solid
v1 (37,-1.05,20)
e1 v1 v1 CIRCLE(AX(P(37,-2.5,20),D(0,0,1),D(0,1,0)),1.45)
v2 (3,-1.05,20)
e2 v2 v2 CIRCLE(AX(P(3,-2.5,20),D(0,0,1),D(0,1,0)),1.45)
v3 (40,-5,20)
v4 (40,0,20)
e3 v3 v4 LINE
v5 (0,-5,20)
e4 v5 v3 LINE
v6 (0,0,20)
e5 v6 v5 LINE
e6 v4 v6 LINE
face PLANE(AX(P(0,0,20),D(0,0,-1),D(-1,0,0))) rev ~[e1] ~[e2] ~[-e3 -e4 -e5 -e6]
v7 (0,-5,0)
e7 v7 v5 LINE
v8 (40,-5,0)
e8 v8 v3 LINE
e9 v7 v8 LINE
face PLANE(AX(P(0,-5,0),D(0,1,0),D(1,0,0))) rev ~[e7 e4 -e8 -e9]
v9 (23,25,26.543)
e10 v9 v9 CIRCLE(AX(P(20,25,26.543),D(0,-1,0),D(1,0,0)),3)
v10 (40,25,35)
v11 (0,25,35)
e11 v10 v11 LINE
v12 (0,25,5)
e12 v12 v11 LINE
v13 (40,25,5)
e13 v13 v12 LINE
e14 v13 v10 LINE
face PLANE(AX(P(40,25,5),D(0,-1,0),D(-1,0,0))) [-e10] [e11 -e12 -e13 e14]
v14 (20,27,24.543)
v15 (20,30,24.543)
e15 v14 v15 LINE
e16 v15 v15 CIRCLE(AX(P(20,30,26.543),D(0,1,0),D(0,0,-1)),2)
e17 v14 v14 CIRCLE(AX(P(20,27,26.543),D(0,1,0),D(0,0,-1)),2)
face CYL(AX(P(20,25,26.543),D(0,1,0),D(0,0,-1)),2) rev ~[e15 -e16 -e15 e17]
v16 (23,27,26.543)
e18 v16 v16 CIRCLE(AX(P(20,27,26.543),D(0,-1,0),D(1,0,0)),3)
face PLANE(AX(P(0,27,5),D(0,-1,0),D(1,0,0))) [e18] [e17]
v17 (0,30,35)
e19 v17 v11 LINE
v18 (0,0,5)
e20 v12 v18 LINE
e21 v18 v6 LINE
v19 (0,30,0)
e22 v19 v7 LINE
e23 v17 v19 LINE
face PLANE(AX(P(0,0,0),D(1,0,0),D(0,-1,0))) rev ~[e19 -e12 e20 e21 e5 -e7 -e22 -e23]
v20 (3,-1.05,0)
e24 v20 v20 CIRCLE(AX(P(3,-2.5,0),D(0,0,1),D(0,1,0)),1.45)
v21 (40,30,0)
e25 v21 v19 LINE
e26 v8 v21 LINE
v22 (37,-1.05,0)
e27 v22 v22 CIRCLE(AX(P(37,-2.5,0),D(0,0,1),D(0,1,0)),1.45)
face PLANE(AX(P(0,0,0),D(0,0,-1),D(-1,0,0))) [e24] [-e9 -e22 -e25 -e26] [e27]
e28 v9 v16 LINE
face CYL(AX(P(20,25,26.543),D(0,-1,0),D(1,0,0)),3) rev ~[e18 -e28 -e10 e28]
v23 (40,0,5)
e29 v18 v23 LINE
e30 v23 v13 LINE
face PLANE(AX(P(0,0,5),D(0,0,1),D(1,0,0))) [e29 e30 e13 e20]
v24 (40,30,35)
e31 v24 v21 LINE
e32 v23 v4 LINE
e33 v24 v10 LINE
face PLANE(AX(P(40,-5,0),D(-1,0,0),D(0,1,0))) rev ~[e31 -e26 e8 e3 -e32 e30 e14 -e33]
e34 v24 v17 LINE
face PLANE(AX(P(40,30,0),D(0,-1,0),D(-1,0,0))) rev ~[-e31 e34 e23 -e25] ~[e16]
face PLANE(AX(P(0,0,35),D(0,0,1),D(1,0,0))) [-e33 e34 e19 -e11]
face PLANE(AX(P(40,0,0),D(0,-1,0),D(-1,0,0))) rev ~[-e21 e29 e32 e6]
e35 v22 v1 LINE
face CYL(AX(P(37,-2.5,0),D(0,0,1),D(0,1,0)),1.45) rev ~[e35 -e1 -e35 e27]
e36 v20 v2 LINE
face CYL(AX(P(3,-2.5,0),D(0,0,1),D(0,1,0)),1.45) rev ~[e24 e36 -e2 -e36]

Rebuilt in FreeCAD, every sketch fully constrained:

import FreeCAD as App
import Part
import Sketcher

V = App.Vector


def add_polygon(sketch, points):
    """Adds a closed chain of lines whose ends are joined by coincident constraints."""
    first, n = sketch.GeometryCount, len(points)
    for a, b in zip(points, points[1:] + points[:1]):
        sketch.addGeometry(Part.LineSegment(App.Vector(*a, 0), App.Vector(*b, 0)), False)
    for i in range(n):
        sketch.addConstraint(Sketcher.Constraint("Coincident", first + i, 2, first + (i + 1) % n, 1))

doc = App.newDocument("Part")
body = doc.addObject("PartDesign::Body", "Body")

# Sketch on XY plane
sketch1 = body.newObject("Sketcher::SketchObject", "Sketch")
sketch1.AttachmentSupport = (doc.getObject("XY_Plane"), [""])
sketch1.MapMode = "FlatFace"
add_polygon(sketch1, [(0, 30), (0, 0), (40, 0), (40, 30)])  # lines 0-3
sketch1.addConstraint([
    Sketcher.Constraint("Vertical", 0),
    Sketcher.Constraint("Horizontal", 1),
    Sketcher.Constraint("Vertical", 2),
    Sketcher.Constraint("Horizontal", 3),
    Sketcher.Constraint("Coincident", 0, 2, -1, 1),
    Sketcher.Constraint("DistanceX", 1, 1, 1, 2, 40.0),
    Sketcher.Constraint("DistanceY", 0, 2, 0, 1, 30.0),
])
pad1 = body.newObject("PartDesign::Pad", "Pad")
pad1.Profile = sketch1
pad1.Length = 5

# Sketch on XY plane
sketch2 = body.newObject("Sketcher::SketchObject", "Sketch001")
sketch2.AttachmentSupport = (doc.getObject("XY_Plane"), [""])
sketch2.MapMode = "FlatFace"
sketch2.AttachmentOffset = App.Placement(V(0, 0, 5), App.Rotation())
add_polygon(sketch2, [(40, 25), (40, 30), (0, 30), (0, 25)])  # lines 0-3
sketch2.addConstraint([
    Sketcher.Constraint("Vertical", 0),
    Sketcher.Constraint("Horizontal", 1),
    Sketcher.Constraint("Vertical", 2),
    Sketcher.Constraint("Horizontal", 3),
    Sketcher.Constraint("PointOnObject", 1, 2, -2),
    Sketcher.Constraint("DistanceY", 0, 1, 0, 2, 5.0),
    Sketcher.Constraint("DistanceX", 1, 2, 1, 1, 40.0),
    Sketcher.Constraint("DistanceY", -1, 1, 0, 2, 30.0),
])
pad2 = body.newObject("PartDesign::Pad", "Pad001")
pad2.Profile = sketch2
pad2.Length = 30

# Sketch on XY plane
sketch3 = body.newObject("Sketcher::SketchObject", "Sketch002")
sketch3.AttachmentSupport = (doc.getObject("XY_Plane"), [""])
sketch3.MapMode = "FlatFace"
add_polygon(sketch3, [(0, 0), (40, 0), (40, -5), (0, -5)])  # lines 0-3
sketch3.addConstraint([
    Sketcher.Constraint("Horizontal", 0),
    Sketcher.Constraint("Vertical", 1),
    Sketcher.Constraint("Horizontal", 2),
    Sketcher.Constraint("Vertical", 3),
    Sketcher.Constraint("Coincident", 3, 2, -1, 1),
    Sketcher.Constraint("DistanceY", 1, 2, 1, 1, 5.0),
    Sketcher.Constraint("DistanceX", 0, 1, 0, 2, 40.0),
])
pad3 = body.newObject("PartDesign::Pad", "Pad002")
pad3.Profile = sketch3
pad3.Length = 20

# Sketch on XZ plane
sketch4 = body.newObject("Sketcher::SketchObject", "Sketch003")
sketch4.AttachmentSupport = (doc.getObject("XZ_Plane"), [""])
sketch4.MapMode = "FlatFace"
sketch4.AttachmentOffset = App.Placement(V(0, 0, -25), App.Rotation())
sketch4.addGeometry(Part.Circle(V(20, 26.543, 0), V(0, 0, 1), 2), False)
sketch4.addConstraint([
    Sketcher.Constraint("Diameter", 0, 4.0),
    Sketcher.Constraint("DistanceX", -1, 1, 0, 3, 20.0),
    Sketcher.Constraint("DistanceY", -1, 1, 0, 3, 26.543),
])
doc.recompute()
hole = body.newObject("PartDesign::Hole", "Hole")
hole.Profile = sketch4
hole.ThreadType = "None"
hole.Diameter = 4
hole.DepthType = "ThroughAll"

# Sketch on XZ plane
sketch5 = body.newObject("Sketcher::SketchObject", "Sketch004")
sketch5.AttachmentSupport = (doc.getObject("XZ_Plane"), [""])
sketch5.MapMode = "FlatFace"
sketch5.AttachmentOffset = App.Placement(V(0, 0, -25), App.Rotation())
sketch5.addGeometry(Part.Circle(V(20, 26.543, 0), V(0, 0, 1), 3), False)
sketch5.addConstraint([
    Sketcher.Constraint("Diameter", 0, 6.0),
    Sketcher.Constraint("DistanceX", -1, 1, 0, 3, 20.0),
    Sketcher.Constraint("DistanceY", -1, 1, 0, 3, 26.543),
])
pocket1 = body.newObject("PartDesign::Pocket", "Pocket")
pocket1.Profile = sketch5
pocket1.Length = 2

# Sketch on XY plane
sketch6 = body.newObject("Sketcher::SketchObject", "Sketch005")
sketch6.AttachmentSupport = (doc.getObject("XY_Plane"), [""])
sketch6.MapMode = "FlatFace"
sketch6.addGeometry([
    Part.Circle(V(37, -2.5, 0), V(0, 0, 1), 1.45),
    Part.Circle(V(3, -2.5, 0), V(0, 0, 1), 1.45),
], False)
sketch6.addConstraint([
    Sketcher.Constraint("Equal", 0, 1),
    Sketcher.Constraint("Horizontal", 0, 3, 1, 3),
    Sketcher.Constraint("Diameter", 0, 2.9),
    Sketcher.Constraint("DistanceX", -1, 1, 0, 3, 37.0),
    Sketcher.Constraint("DistanceX", -1, 1, 1, 3, 3.0),
    Sketcher.Constraint("DistanceY", 0, 3, -1, 1, 2.5),
])
doc.recompute()
hole2 = body.newObject("PartDesign::Hole", "Hole001")
hole2.Profile = sketch6
hole2.ThreadType = "None"
hole2.Diameter = 2.9
hole2.DepthType = "ThroughAll"
hole2.Reversed = True

doc.recompute()
